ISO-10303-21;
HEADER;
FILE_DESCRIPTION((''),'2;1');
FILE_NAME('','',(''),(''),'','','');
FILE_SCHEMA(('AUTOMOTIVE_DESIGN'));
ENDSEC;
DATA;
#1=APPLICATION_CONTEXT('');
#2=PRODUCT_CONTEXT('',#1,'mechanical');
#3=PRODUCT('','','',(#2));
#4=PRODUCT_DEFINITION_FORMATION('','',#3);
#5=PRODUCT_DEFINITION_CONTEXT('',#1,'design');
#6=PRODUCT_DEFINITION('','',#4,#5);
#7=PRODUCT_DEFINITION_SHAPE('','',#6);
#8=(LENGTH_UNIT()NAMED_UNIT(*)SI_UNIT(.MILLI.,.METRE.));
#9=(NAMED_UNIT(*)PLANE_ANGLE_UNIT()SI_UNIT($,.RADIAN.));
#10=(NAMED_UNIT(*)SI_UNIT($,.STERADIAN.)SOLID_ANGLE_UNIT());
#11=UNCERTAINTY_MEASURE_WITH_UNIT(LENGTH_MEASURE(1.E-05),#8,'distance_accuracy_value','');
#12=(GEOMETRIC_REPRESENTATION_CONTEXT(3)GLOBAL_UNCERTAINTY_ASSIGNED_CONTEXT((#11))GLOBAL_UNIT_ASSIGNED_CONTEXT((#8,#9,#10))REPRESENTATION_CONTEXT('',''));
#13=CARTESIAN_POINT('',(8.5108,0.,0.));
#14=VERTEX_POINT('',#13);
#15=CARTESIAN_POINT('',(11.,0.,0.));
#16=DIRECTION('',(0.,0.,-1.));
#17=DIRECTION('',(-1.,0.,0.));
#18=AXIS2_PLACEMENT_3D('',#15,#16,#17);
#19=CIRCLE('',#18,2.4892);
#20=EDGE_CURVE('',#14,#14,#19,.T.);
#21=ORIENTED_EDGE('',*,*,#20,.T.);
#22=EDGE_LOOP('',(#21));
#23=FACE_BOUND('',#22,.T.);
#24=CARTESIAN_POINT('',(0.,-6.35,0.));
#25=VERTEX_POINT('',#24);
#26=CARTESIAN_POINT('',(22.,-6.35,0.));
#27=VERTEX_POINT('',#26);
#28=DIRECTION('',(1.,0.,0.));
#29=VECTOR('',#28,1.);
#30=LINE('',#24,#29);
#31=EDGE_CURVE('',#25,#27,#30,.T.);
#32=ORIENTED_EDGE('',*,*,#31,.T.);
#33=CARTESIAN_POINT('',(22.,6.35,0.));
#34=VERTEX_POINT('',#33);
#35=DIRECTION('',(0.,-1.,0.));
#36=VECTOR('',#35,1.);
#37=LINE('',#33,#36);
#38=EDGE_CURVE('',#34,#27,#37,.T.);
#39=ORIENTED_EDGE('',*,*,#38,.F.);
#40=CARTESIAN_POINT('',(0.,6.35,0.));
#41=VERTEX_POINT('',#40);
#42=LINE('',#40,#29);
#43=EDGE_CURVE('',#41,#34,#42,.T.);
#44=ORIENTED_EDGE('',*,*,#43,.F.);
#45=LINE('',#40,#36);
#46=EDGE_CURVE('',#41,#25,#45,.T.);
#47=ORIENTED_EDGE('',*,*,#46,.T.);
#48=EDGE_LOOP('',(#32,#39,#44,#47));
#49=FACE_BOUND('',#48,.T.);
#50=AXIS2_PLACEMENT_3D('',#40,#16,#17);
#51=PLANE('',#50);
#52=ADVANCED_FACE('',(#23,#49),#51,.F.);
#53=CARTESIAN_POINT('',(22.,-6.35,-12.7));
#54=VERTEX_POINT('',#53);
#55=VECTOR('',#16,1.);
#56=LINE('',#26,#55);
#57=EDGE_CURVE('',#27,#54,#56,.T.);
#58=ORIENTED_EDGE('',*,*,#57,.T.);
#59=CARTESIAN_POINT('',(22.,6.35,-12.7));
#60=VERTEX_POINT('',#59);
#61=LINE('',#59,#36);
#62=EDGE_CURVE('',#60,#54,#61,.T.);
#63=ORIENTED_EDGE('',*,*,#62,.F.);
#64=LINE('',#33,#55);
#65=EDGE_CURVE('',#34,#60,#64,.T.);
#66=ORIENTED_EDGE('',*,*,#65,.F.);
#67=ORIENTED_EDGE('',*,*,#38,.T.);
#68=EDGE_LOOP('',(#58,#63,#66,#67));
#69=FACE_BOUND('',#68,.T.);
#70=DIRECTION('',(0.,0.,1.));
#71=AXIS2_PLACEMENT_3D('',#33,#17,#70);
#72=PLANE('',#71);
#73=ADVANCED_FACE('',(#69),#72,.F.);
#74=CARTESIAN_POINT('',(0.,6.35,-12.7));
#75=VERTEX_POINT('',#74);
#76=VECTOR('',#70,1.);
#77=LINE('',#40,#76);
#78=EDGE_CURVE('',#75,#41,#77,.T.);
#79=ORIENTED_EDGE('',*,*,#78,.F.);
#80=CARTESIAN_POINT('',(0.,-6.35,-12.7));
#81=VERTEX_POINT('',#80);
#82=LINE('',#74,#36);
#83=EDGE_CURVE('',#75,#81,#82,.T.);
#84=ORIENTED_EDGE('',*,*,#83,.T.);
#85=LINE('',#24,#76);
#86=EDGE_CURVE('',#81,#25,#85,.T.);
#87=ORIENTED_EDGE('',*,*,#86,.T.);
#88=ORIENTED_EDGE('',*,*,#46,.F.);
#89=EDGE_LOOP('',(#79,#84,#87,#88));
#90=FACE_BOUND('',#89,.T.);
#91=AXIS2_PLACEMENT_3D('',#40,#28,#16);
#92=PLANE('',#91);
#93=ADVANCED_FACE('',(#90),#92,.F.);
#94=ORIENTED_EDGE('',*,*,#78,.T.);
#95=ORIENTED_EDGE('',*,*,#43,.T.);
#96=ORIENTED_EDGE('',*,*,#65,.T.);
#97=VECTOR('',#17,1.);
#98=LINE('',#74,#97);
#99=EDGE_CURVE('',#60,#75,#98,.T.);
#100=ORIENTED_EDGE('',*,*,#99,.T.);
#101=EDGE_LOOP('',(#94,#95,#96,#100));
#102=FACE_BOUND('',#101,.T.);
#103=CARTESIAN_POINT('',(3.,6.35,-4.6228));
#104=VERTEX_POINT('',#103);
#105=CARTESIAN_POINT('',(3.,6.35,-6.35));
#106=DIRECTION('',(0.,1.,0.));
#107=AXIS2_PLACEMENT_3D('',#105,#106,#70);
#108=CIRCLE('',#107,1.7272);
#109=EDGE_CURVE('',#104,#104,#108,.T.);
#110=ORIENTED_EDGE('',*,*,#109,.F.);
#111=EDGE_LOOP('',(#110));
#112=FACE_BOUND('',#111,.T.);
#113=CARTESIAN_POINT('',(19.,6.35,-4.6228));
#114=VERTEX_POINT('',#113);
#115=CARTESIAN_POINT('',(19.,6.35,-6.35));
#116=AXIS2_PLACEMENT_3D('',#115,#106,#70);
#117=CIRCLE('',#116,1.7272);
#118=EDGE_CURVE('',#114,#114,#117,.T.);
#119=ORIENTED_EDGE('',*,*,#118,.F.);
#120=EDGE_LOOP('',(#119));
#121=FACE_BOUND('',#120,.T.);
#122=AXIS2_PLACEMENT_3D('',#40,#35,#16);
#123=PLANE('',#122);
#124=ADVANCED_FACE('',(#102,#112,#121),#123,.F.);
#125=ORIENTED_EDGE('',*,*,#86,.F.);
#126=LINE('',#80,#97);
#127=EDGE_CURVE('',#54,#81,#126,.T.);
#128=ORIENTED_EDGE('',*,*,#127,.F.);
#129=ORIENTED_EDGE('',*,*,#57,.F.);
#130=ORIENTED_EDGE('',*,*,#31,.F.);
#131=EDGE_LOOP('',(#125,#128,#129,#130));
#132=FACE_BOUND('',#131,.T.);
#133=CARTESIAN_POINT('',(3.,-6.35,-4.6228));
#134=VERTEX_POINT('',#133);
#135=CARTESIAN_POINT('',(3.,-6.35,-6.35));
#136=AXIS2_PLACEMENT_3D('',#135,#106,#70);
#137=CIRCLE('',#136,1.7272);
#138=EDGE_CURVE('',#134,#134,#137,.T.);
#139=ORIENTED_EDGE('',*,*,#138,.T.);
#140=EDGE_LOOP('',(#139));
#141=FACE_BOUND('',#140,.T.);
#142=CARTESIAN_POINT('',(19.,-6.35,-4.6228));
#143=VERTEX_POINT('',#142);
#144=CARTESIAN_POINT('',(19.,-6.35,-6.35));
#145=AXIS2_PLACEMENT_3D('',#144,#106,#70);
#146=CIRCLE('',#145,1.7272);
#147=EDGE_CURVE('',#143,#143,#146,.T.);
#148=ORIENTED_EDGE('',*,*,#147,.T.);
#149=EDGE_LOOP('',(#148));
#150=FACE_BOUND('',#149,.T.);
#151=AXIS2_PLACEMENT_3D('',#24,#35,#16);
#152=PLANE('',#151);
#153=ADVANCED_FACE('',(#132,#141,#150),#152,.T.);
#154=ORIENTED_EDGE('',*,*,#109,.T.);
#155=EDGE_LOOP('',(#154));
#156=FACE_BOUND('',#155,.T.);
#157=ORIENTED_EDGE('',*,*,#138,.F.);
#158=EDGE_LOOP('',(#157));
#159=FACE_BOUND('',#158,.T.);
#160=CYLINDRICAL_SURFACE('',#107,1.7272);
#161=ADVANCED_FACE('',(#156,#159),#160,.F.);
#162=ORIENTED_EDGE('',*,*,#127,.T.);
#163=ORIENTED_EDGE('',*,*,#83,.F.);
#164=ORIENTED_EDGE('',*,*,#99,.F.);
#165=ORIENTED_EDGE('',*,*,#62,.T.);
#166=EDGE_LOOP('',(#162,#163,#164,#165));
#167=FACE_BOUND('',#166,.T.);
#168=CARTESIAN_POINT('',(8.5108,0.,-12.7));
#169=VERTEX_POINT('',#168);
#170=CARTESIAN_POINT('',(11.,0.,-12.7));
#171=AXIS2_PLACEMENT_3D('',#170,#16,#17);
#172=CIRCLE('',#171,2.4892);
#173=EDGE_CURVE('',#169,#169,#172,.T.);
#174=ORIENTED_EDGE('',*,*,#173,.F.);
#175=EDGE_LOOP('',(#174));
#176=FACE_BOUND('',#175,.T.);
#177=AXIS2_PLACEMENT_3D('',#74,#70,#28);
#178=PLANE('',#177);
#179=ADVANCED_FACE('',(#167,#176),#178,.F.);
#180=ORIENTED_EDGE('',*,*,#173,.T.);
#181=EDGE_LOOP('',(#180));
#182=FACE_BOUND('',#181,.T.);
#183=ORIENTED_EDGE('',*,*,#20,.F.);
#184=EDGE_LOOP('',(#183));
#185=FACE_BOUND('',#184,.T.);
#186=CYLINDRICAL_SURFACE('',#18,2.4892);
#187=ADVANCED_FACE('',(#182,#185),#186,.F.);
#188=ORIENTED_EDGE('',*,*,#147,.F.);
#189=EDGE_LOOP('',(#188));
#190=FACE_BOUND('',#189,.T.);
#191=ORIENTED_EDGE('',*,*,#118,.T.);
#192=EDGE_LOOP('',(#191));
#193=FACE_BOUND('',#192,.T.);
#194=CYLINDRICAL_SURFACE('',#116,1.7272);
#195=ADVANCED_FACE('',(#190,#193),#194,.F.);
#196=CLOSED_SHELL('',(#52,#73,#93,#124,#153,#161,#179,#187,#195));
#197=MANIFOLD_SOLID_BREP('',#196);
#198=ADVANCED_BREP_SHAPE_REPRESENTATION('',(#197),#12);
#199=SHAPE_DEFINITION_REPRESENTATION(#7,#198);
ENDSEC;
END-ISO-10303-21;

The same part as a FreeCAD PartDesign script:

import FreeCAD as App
import Part
import Sketcher
Q = App.Units.Quantity

doc = App.newDocument("Part")
params = doc.addObject("Spreadsheet::Sheet", "Params")
for row, (alias, value) in enumerate([
    ("sketch1_height", "0.5 in"),
    ("pad1_length", "0.5 in"),
    ("sketch2_diameter", "0.136 in"),
    ("hole_diameter", "0.136 in"),
    ("sketch3_diameter", "0.196 in"),
], start=1):
    params.set(f"A{row}", alias)
    params.set(f"B{row}", "=" + value)
    params.setAlias(f"B{row}", alias)

body = doc.addObject("PartDesign::Body", "Body")

sketch1 = body.newObject("Sketcher::SketchObject", "Sketch")
sketch1.AttachmentSupport = (doc.getObject("XZ_Plane"), [""])
sketch1.MapMode = "FlatFace"
sketch1.addGeometry([
    Part.LineSegment(App.Vector(0, -12.7, 0), App.Vector(0, 0, 0)),
    Part.LineSegment(App.Vector(0, 0, 0), App.Vector(22, 0, 0)),
    Part.LineSegment(App.Vector(22, 0, 0), App.Vector(22, -12.7, 0)),
    Part.LineSegment(App.Vector(22, -12.7, 0), App.Vector(0, -12.7, 0)),
], False)
sketch1.addConstraint([
    Sketcher.Constraint("Coincident", 0, 2, 1, 1),
    Sketcher.Constraint("Coincident", 1, 2, 2, 1),
    Sketcher.Constraint("Coincident", 2, 2, 3, 1),
    Sketcher.Constraint("Coincident", 3, 2, 0, 1),
    Sketcher.Constraint("Vertical", 0),
    Sketcher.Constraint("Horizontal", 1),
    Sketcher.Constraint("Vertical", 2),
    Sketcher.Constraint("Horizontal", 3),
    Sketcher.Constraint("Coincident", 0, 2, -1, 1),
    Sketcher.Constraint("DistanceY", 0, 1, 0, 2, Q("0.5 in")),
    Sketcher.Constraint("DistanceX", 1, 1, 1, 2, Q("22 mm")),
])
sketch1.setExpression("Constraints[9]", "Params.sketch1_height")
pad1 = body.newObject("PartDesign::Pad", "Pad")
pad1.Profile = sketch1
pad1.setExpression("Length", "Params.pad1_length")
pad1.Midplane = True

sketch2 = body.newObject("Sketcher::SketchObject", "Sketch001")
sketch2.AttachmentSupport = (doc.getObject("XZ_Plane"), [""])
sketch2.MapMode = "FlatFace"
sketch2.AttachmentOffset = App.Placement(App.Vector(0, 0, -0.25 * 25.4), App.Rotation())
sketch2.addGeometry([
    Part.Circle(App.Vector(3, -6.35, 0), App.Vector(0, 0, 1), 1.7272),
    Part.Circle(App.Vector(19, -6.35, 0), App.Vector(0, 0, 1), 1.7272),
], False)
sketch2.addConstraint([
    Sketcher.Constraint("Equal", 0, 1),
    Sketcher.Constraint("Horizontal", 0, 3, 1, 3),
    Sketcher.Constraint("Diameter", 0, Q("0.136 in")),
    Sketcher.Constraint("DistanceY", 0, 3, -1, 1, Q("0.25 in")),
    Sketcher.Constraint("DistanceX", -1, 1, 0, 3, Q("3 mm")),
    Sketcher.Constraint("DistanceX", -1, 1, 1, 3, Q("19 mm")),
])
sketch2.setExpression("Constraints[2]", "Params.sketch2_diameter")
doc.recompute()
hole = body.newObject("PartDesign::Hole", "Hole")
hole.Profile = sketch2
hole.ThreadType = "None"
hole.setExpression("Diameter", "Params.hole_diameter")
hole.DepthType = "ThroughAll"
hole.Reversed = True

sketch3 = body.newObject("Sketcher::SketchObject", "Sketch002")
sketch3.AttachmentSupport = (doc.getObject("XY_Plane"), [""])
sketch3.MapMode = "FlatFace"
sketch3.AttachmentOffset = App.Placement(App.Vector(0, 0, -0.5 * 25.4), App.Rotation())
sketch3.addGeometry(Part.Circle(App.Vector(11, 0, 0), App.Vector(0, 0, 1), 2.4892), False)
sketch3.addConstraint([
    Sketcher.Constraint("PointOnObject", 0, 3, -1),
    Sketcher.Constraint("Diameter", 0, Q("0.196 in")),
    Sketcher.Constraint("DistanceX", -1, 1, 0, 3, Q("11 mm")),
])
sketch3.setExpression("Constraints[1]", "Params.sketch3_diameter")
pocket1 = body.newObject("PartDesign::Pocket", "Pocket")
pocket1.Profile = sketch3
pocket1.Type = "ThroughAll"
pocket1.Reversed = True

doc.recompute()
